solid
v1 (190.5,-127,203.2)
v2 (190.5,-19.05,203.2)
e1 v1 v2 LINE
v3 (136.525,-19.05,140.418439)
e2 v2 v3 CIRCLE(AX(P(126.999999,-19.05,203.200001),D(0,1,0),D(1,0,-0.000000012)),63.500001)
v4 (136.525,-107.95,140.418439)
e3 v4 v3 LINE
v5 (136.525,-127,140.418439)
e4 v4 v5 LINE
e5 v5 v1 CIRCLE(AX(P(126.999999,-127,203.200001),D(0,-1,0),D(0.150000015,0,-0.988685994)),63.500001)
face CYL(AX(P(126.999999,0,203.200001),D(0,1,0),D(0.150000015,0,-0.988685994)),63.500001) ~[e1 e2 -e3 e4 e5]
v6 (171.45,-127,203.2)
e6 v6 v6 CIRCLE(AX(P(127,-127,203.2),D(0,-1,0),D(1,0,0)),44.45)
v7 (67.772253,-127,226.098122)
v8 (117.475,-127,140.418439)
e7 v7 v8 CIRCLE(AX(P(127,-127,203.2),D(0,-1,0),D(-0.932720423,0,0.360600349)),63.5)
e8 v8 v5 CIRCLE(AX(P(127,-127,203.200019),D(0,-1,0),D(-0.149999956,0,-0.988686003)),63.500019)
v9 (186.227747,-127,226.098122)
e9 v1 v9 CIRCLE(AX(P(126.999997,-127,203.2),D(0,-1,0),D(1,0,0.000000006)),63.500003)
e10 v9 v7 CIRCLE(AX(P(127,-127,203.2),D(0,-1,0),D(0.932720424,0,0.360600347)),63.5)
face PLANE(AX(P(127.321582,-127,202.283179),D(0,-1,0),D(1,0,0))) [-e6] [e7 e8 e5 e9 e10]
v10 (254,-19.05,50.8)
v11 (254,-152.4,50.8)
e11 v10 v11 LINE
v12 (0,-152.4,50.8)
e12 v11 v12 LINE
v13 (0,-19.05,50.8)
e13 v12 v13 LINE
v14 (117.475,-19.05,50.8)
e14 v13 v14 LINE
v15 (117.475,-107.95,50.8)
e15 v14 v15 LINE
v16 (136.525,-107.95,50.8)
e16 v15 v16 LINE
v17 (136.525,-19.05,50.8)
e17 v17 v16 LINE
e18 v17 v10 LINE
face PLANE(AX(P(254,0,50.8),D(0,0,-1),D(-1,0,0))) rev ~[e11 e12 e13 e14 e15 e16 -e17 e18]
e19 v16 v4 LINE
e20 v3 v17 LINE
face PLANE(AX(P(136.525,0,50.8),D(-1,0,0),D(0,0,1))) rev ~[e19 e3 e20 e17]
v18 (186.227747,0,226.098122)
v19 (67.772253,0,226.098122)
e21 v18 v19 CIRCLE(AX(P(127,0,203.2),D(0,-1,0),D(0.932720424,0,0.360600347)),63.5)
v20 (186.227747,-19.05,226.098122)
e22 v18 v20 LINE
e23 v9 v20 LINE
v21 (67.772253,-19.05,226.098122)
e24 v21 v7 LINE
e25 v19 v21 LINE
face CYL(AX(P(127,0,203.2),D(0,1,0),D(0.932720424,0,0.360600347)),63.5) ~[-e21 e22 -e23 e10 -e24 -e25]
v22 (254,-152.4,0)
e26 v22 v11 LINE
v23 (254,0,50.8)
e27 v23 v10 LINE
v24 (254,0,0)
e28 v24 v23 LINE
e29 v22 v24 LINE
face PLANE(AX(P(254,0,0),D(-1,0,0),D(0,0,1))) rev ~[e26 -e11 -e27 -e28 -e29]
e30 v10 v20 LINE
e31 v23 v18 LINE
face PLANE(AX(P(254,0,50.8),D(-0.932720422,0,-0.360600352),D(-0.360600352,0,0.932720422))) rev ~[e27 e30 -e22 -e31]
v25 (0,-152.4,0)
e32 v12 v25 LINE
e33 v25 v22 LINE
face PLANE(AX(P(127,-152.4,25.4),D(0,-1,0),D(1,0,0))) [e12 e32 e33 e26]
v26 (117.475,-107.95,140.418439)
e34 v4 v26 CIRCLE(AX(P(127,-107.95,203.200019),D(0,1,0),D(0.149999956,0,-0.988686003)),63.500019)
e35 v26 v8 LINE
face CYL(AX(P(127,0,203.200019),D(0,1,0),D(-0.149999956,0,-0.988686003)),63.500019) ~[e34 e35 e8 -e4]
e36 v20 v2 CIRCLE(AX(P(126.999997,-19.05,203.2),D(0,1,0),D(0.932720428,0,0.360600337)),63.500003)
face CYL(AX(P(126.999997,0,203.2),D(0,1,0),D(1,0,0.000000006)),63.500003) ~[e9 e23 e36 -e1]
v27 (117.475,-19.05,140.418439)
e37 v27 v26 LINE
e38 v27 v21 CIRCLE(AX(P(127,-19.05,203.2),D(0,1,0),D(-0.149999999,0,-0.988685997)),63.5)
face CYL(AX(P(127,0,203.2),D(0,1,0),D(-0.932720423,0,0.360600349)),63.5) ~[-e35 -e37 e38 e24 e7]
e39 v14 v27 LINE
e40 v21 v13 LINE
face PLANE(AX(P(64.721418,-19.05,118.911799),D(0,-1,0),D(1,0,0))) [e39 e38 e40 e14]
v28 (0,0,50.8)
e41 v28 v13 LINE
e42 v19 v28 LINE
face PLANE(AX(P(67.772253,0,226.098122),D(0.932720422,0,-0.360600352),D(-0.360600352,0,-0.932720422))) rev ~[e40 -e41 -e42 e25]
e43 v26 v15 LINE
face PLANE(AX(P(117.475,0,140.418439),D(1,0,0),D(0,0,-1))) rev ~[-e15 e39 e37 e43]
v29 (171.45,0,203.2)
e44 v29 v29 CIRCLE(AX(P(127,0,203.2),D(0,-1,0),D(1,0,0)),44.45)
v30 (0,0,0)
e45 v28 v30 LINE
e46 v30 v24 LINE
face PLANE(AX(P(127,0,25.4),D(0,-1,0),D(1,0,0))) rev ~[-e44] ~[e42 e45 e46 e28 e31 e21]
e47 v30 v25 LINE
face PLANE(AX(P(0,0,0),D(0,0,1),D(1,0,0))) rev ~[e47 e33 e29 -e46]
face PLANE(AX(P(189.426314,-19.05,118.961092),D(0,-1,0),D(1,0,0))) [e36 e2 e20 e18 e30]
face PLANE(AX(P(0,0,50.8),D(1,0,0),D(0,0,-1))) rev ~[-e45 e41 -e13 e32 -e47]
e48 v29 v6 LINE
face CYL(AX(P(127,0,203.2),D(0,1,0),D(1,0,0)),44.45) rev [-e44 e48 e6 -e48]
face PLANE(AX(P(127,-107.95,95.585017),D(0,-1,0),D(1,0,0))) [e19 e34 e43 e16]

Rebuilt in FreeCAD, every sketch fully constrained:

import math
import FreeCAD as App
import Part
import Sketcher
from FreeCAD import Vector
Q = App.Units.Quantity


def add_polygon(sketch, points):
    """Adds a closed chain of lines whose ends are joined by coincident constraints."""
    first, n = sketch.GeometryCount, len(points)
    for a, b in zip(points, points[1:] + points[:1]):
        sketch.addGeometry(Part.LineSegment(App.Vector(*a, 0), App.Vector(*b, 0)), False)
    for i in range(n):
        sketch.addConstraint(Sketcher.Constraint("Coincident", first + i, 2, first + (i + 1) % n, 1))

doc = App.newDocument("Part")
body = doc.addObject("PartDesign::Body", "Body")

sketch1 = body.newObject("Sketcher::SketchObject", "Sketch")
sketch1.AttachmentSupport = (doc.getObject("XZ_Plane"), [""])
sketch1.MapMode = "FlatFace"
sketch1.addGeometry([
    Part.ArcOfCircle(Part.Circle(Vector(127, 203.2, 0), Vector(0, 0, 1), 63.5), math.radians(21.13707), math.radians(158.86293)),
    Part.ArcOfCircle(Part.Circle(Vector(127, 203.2, 0), Vector(0, 0, 1), 63.5), math.radians(158.86293), math.radians(261.373074)),
    Part.ArcOfCircle(Part.Circle(Vector(127, 203.200019, 0), Vector(0, 0, 1), 63.500019), math.radians(-98.626924), math.radians(-81.373076)),
    Part.ArcOfCircle(Part.Circle(Vector(126.999999, 203.200001, 0), Vector(0, 0, 1), 63.500001), math.radians(-81.373073), math.radians(-0.000001)),
    Part.ArcOfCircle(Part.Circle(Vector(126.999997, 203.2, 0), Vector(0, 0, 1), 63.500003), math.radians(0), math.radians(21.137069)),
    Part.Circle(Vector(127, 203.2, 0), Vector(0, 0, 1), 44.45),
], False)
sketch1.addConstraint([
    Sketcher.Constraint("Coincident", 0, 2, 1, 1),
    Sketcher.Constraint("Coincident", 1, 2, 2, 1),
    Sketcher.Constraint("Coincident", 2, 2, 3, 1),
    Sketcher.Constraint("Coincident", 3, 2, 4, 1),
    Sketcher.Constraint("Coincident", 4, 2, 0, 1),
    Sketcher.Constraint("Coincident", 1, 3, 0, 3),
    Sketcher.Constraint("Coincident", 3, 3, 0, 3),
    Sketcher.Constraint("Coincident", 4, 3, 0, 3),
    Sketcher.Constraint("Coincident", 5, 3, 0, 3),
    Sketcher.Constraint("Diameter", 5, Q("3.5 in")),
    Sketcher.Constraint("Radius", 0, Q("2.5 in")),
    Sketcher.Constraint("DistanceX", -1, 1, 0, 3, Q("5 in")),
    Sketcher.Constraint("DistanceY", -1, 1, 0, 3, Q("8 in")),
    Sketcher.Constraint("DistanceY", -1, 1, 3, 2, Q("8 in")),
    Sketcher.Constraint("DistanceX", 1, 2, 2, 2, Q("0.75 in")),
    Sketcher.Constraint("DistanceX", -1, 1, 1, 2, Q("4.625 in")),
    Sketcher.Constraint("Radius", 2, Q("63.500019 mm")),
    Sketcher.Constraint("DistanceY", 2, 3, 0, 2, Q("0.9015001 in")),
    Sketcher.Constraint("DistanceY", 2, 3, 4, 2, Q("0.9015001 in")),
])
pad1 = body.newObject("PartDesign::Pad", "Pad")
pad1.Profile = sketch1
pad1.Length = Q("5 in")

sketch2 = body.newObject("Sketcher::SketchObject", "Sketch001")
sketch2.AttachmentSupport = (doc.getObject("XZ_Plane"), [""])
sketch2.MapMode = "FlatFace"
sketch2.addGeometry([
    Part.LineSegment(Vector(136.525, 50.8, 0), Vector(254, 50.8, 0)),
    Part.LineSegment(Vector(254, 50.8, 0), Vector(186.227747, 226.098122, 0)),
    Part.ArcOfCircle(Part.Circle(Vector(126.999997, 203.2, 0), Vector(0, 0, 1), 63.500003), math.radians(0), math.radians(21.137069)),
    Part.ArcOfCircle(Part.Circle(Vector(126.999999, 203.200001, 0), Vector(0, 0, 1), 63.500001), math.radians(-81.373073), math.radians(-0.000001)),
    Part.LineSegment(Vector(136.525, 140.418439, 0), Vector(136.525, 50.8, 0)),
    Part.LineSegment(Vector(67.772253, 226.098122, 0), Vector(0, 50.8, 0)),
    Part.LineSegment(Vector(0, 50.8, 0), Vector(117.475, 50.8, 0)),
    Part.LineSegment(Vector(117.475, 50.8, 0), Vector(117.475, 140.418439, 0)),
    Part.ArcOfCircle(Part.Circle(Vector(127, 203.2, 0), Vector(0, 0, 1), 63.5), math.radians(158.86293), math.radians(261.373074)),
], False)
sketch2.addConstraint([
    Sketcher.Constraint("Coincident", 0, 2, 1, 1),
    Sketcher.Constraint("Tangent", 1, 2, 2, 2),
    Sketcher.Constraint("Tangent", 2, 1, 3, 2),
    Sketcher.Constraint("Coincident", 3, 1, 4, 1),
    Sketcher.Constraint("Coincident", 4, 2, 0, 1),
    Sketcher.Constraint("Coincident", 5, 2, 6, 1),
    Sketcher.Constraint("Coincident", 6, 2, 7, 1),
    Sketcher.Constraint("Coincident", 7, 2, 8, 2),
    Sketcher.Constraint("Tangent", 8, 1, 5, 1),
    Sketcher.Constraint("Horizontal", 0),
    Sketcher.Constraint("Vertical", 4),
    Sketcher.Constraint("Horizontal", 6),
    Sketcher.Constraint("Vertical", 7),
    Sketcher.Constraint("Coincident", 8, 3, 2, 3),
    Sketcher.Constraint("Equal", 2, 3),
    Sketcher.Constraint("Equal", 3, 8),
    Sketcher.Constraint("PointOnObject", 5, 2, -2),
    Sketcher.Constraint("Horizontal", 8, 3, 2, 1),
    Sketcher.Constraint("Horizontal", 4, 2, 5, 2),
    Sketcher.Constraint("Horizontal", 3, 1, 7, 2),
    Sketcher.Constraint("Horizontal", 1, 2, 8, 1),
    Sketcher.Constraint("Radius", 2, Q("2.5000001 in")),
    Sketcher.Constraint("DistanceX", -1, 1, 2, 3, Q("4.9999999 in")),
    Sketcher.Constraint("DistanceY", -1, 1, 2, 3, Q("8 in")),
    Sketcher.Constraint("DistanceY", -1, 1, 0, 2, Q("2 in")),
    Sketcher.Constraint("DistanceX", 0, 1, 0, 2, Q("4.625 in")),
])
pad2 = body.newObject("PartDesign::Pad", "Pad001")
pad2.Profile = sketch2
pad2.Length = Q("0.75 in")

sketch3 = body.newObject("Sketcher::SketchObject", "Sketch002")
sketch3.AttachmentSupport = (doc.getObject("XZ_Plane"), [""])
sketch3.MapMode = "FlatFace"
sketch3.addGeometry([
    Part.LineSegment(Vector(117.475, 140.418439, 0), Vector(117.475, 50.8, 0)),
    Part.LineSegment(Vector(117.475, 50.8, 0), Vector(136.525, 50.8, 0)),
    Part.LineSegment(Vector(136.525, 50.8, 0), Vector(136.525, 140.418439, 0)),
    Part.ArcOfCircle(Part.Circle(Vector(127, 203.200019, 0), Vector(0, 0, 1), 63.500019), math.radians(-98.626924), math.radians(-81.373076)),
], False)
sketch3.addConstraint([
    Sketcher.Constraint("Coincident", 0, 2, 1, 1),
    Sketcher.Constraint("Coincident", 1, 2, 2, 1),
    Sketcher.Constraint("Coincident", 2, 2, 3, 2),
    Sketcher.Constraint("Coincident", 3, 1, 0, 1),
    Sketcher.Constraint("Vertical", 0),
    Sketcher.Constraint("Horizontal", 1),
    Sketcher.Constraint("Vertical", 2),
    Sketcher.Constraint("Horizontal", 2, 2, 3, 1),
    Sketcher.Constraint("DistanceX", -1, 1, 3, 3, Q("5 in")),
    Sketcher.Constraint("DistanceY", -1, 1, 0, 2, Q("2 in")),
    Sketcher.Constraint("DistanceX", 1, 1, 1, 2, Q("0.75 in")),
    Sketcher.Constraint("Radius", 3, Q("63.500019 mm")),
    Sketcher.Constraint("DistanceY", 0, 2, 0, 1, Q("89.618439 mm")),
])
pad3 = body.newObject("PartDesign::Pad", "Pad002")
pad3.Profile = sketch3
pad3.Length = Q("4.25 in")

sketch4 = body.newObject("Sketcher::SketchObject", "Sketch003")
sketch4.AttachmentSupport = (doc.getObject("XZ_Plane"), [""])
sketch4.MapMode = "FlatFace"
add_polygon(sketch4, [(0, 50.8), (0, 0), (254, 0), (254, 50.8)])
sketch4.addConstraint([
    Sketcher.Constraint("Vertical", 0),
    Sketcher.Constraint("Horizontal", 1),
    Sketcher.Constraint("Vertical", 2),
    Sketcher.Constraint("Horizontal", 3),
    Sketcher.Constraint("Coincident", 0, 2, -1, 1),
    Sketcher.Constraint("DistanceX", 1, 1, 1, 2, Q("10 in")),
    Sketcher.Constraint("DistanceY", 0, 2, 0, 1, Q("2 in")),
])
pad4 = body.newObject("PartDesign::Pad", "Pad003")
pad4.Profile = sketch4
pad4.Length = Q("6 in")

sketch5 = body.newObject("Sketcher::SketchObject", "Sketch004")
sketch5.AttachmentSupport = (doc.getObject("XZ_Plane"), [""])
sketch5.MapMode = "FlatFace"
sketch5.addGeometry(Part.ArcOfCircle(Part.Circle(Vector(127, 203.2, 0), Vector(0, 0, 1), 63.5), math.radians(21.13707), math.radians(158.86293)), False)
sketch5.addGeometry(Part.ArcOfCircle(Part.Circle(Vector(127, 203.2, 0), Vector(0, 0, 1), 63.5), math.radians(158.86293), math.radians(261.373074)), False)
sketch5.addGeometry(Part.ArcOfCircle(Part.Circle(Vector(127, 203.200019, 0), Vector(0, 0, 1), 63.500019), math.radians(-98.626924), math.radians(-81.373076)), False)
sketch5.addGeometry(Part.ArcOfCircle(Part.Circle(Vector(126.999999, 203.200001, 0), Vector(0, 0, 1), 63.500001), math.radians(-81.373073), math.radians(-0.000001)), False)
sketch5.addGeometry(Part.ArcOfCircle(Part.Circle(Vector(126.999997, 203.2, 0), Vector(0, 0, 1), 63.500003), math.radians(0), math.radians(21.137069)), False)
sketch5.addGeometry(Part.Circle(Vector(127, 203.2, 0), Vector(0, 0, 1), 44.45), False)
add_polygon(sketch5, [(0, 50.8), (0, 0), (254, 0), (254, 50.8)])
sketch5.addConstraint([
    Sketcher.Constraint("Coincident", 0, 2, 1, 1),
    Sketcher.Constraint("Coincident", 1, 2, 2, 1),
    Sketcher.Constraint("Coincident", 2, 2, 3, 1),
    Sketcher.Constraint("Coincident", 3, 2, 4, 1),
    Sketcher.Constraint("Coincident", 4, 2, 0, 1),
    Sketcher.Constraint("Vertical", 6),
    Sketcher.Constraint("Horizontal", 7),
    Sketcher.Constraint("Vertical", 8),
    Sketcher.Constraint("Horizontal", 9),
    Sketcher.Constraint("Coincident", 6, 2, -1, 1),
    Sketcher.Constraint("Coincident", 1, 3, 0, 3),
    Sketcher.Constraint("Coincident", 3, 3, 0, 3),
    Sketcher.Constraint("Coincident", 4, 3, 0, 3),
    Sketcher.Constraint("Coincident", 5, 3, 0, 3),
    Sketcher.Constraint("Diameter", 5, Q("3.5 in")),
    Sketcher.Constraint("Radius", 0, Q("2.5 in")),
    Sketcher.Constraint("DistanceX", 7, 1, 7, 2, Q("10 in")),
    Sketcher.Constraint("DistanceY", 6, 2, 6, 1, Q("2 in")),
    Sketcher.Constraint("DistanceX", -1, 1, 0, 3, Q("5 in")),
    Sketcher.Constraint("DistanceY", -1, 1, 0, 3, Q("8 in")),
    Sketcher.Constraint("DistanceY", -1, 1, 3, 2, Q("8 in")),
    Sketcher.Constraint("DistanceX", 1, 2, 2, 2, Q("0.75 in")),
    Sketcher.Constraint("DistanceX", -1, 1, 1, 2, Q("4.625 in")),
    Sketcher.Constraint("Radius", 2, Q("63.500019 mm")),
    Sketcher.Constraint("DistanceY", 2, 3, 0, 2, Q("0.9015001 in")),
    Sketcher.Constraint("DistanceY", 2, 3, 4, 2, Q("0.9015001 in")),
])
pad5 = body.newObject("PartDesign::Pad", "Pad004")
pad5.Profile = sketch5
pad5.Length = Q("1 in")

doc.recompute()
